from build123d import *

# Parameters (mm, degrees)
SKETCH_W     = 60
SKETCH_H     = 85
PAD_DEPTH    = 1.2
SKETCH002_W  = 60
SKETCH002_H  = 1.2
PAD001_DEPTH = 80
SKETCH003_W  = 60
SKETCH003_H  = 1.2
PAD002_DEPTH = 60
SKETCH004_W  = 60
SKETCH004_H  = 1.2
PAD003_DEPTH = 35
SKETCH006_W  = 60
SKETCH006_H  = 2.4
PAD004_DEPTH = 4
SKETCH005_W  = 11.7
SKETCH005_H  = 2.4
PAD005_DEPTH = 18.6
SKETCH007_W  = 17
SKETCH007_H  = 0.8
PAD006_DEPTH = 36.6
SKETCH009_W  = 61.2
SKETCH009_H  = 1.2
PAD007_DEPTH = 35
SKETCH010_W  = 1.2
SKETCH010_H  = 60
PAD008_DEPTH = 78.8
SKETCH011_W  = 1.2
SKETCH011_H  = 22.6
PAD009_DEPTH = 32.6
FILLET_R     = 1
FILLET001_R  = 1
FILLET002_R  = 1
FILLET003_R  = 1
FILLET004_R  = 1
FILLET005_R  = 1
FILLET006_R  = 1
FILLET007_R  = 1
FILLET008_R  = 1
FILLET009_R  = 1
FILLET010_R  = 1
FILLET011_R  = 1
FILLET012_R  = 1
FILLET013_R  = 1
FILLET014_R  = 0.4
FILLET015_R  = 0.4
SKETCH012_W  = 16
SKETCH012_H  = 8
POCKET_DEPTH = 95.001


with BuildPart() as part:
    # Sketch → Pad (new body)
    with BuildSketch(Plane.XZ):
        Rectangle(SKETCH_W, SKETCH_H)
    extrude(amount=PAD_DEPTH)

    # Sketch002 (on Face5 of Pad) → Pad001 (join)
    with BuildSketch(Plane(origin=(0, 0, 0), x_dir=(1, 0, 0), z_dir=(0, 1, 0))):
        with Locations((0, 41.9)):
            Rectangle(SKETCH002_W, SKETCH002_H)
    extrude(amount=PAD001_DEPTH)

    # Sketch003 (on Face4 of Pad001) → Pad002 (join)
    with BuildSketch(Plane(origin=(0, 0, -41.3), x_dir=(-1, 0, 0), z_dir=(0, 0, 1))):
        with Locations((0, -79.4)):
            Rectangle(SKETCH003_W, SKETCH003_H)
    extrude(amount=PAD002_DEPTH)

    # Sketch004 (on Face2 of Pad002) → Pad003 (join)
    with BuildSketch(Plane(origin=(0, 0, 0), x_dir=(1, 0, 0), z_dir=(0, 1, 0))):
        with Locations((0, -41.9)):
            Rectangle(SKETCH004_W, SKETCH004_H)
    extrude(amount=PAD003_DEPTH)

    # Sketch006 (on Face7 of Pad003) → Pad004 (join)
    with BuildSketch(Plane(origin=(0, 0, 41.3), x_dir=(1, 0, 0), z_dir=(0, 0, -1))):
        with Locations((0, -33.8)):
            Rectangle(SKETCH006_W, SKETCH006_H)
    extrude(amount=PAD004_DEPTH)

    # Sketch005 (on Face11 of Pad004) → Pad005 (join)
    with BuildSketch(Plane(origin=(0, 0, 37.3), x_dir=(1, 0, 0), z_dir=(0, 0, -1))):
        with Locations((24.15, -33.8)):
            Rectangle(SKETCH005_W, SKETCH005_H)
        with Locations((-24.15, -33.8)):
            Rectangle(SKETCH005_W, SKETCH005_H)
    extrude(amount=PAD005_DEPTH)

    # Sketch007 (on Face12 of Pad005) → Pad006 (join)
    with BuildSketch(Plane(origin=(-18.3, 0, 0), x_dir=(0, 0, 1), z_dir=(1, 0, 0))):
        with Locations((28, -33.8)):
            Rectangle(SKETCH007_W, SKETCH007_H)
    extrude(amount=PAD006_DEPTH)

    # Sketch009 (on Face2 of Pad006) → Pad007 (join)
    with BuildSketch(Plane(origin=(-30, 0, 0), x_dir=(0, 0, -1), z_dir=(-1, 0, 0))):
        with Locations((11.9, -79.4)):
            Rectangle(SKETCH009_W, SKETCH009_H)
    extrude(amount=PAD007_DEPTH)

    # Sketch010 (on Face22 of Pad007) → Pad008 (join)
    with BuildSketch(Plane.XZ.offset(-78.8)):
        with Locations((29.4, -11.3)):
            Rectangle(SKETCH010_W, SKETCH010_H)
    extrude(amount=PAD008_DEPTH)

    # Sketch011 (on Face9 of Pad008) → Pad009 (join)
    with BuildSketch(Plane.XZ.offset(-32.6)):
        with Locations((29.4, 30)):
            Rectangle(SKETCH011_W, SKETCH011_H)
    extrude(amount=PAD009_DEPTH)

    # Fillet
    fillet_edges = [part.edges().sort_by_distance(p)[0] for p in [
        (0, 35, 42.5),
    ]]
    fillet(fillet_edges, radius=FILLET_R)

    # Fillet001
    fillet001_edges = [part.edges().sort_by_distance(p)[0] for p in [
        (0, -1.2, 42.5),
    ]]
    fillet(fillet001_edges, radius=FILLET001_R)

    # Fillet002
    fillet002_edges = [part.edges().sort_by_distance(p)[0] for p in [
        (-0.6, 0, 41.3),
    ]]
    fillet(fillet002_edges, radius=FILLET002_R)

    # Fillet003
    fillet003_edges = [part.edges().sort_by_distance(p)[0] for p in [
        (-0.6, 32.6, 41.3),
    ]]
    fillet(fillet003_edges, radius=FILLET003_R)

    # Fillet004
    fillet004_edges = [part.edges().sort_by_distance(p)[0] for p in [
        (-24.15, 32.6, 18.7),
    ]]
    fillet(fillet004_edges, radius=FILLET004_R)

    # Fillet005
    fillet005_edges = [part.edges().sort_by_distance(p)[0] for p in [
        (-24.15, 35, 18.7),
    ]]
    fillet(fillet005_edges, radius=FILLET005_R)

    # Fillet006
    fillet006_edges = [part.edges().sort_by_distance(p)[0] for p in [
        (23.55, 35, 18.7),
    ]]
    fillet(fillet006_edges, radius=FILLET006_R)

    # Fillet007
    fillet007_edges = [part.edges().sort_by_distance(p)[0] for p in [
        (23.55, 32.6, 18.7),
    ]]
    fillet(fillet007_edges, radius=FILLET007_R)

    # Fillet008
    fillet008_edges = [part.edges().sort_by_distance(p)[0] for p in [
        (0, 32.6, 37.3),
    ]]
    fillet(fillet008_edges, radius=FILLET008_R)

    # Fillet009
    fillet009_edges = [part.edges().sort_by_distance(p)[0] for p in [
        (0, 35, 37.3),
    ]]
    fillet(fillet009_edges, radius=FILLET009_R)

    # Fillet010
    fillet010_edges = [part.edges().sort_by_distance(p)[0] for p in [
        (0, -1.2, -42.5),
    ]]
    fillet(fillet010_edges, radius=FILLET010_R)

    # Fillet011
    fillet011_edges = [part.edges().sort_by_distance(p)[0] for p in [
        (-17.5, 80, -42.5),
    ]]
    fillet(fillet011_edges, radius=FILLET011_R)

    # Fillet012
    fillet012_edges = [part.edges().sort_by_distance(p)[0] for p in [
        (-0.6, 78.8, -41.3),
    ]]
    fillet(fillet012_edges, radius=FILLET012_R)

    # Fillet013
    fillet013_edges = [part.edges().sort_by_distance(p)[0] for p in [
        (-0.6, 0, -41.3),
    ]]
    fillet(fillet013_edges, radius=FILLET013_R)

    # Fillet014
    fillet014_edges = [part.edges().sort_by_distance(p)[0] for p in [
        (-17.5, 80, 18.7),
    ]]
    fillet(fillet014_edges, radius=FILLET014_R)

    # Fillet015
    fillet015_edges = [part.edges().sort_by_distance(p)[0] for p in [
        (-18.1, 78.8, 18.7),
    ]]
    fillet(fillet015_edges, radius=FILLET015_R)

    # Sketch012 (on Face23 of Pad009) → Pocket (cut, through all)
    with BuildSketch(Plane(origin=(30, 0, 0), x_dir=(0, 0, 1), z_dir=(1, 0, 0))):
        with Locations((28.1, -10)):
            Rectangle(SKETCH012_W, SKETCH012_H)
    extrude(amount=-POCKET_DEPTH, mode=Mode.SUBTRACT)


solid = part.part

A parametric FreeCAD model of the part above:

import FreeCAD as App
import Part
import Sketcher
Q = App.Units.Quantity


def edges_at(feature, points):
    """Names of the edges that pass closest to the given points."""
    edges = feature.Shape.Edges
    near = lambda p: min(range(len(edges)), key=lambda i: edges[i].distToShape(Part.Vertex(*p))[0])
    return sorted({f"Edge{near(p) + 1}" for p in points})

doc = App.newDocument("Part")
params = doc.addObject("Spreadsheet::Sheet", "Params")
for row, (alias, value) in enumerate([
    ("sketch1_width", "60 mm"),
    ("sketch1_height", "85 mm"),
    ("pad1_length", "1.2 mm"),
    ("sketch2_width", "60 mm"),
    ("sketch2_height", "1.2 mm"),
    ("pad2_length", "80 mm"),
    ("sketch3_width", "60 mm"),
    ("sketch3_height", "1.2 mm"),
    ("pad3_length", "60 mm"),
    ("sketch4_width", "60 mm"),
    ("sketch4_height", "1.2 mm"),
    ("pad4_length", "35 mm"),
    ("sketch5_width", "60 mm"),
    ("sketch5_height", "2.4 mm"),
    ("pad5_length", "4 mm"),
    ("sketch6_width", "11.7 mm"),
    ("sketch6_height", "2.4 mm"),
    ("pad6_length", "18.6 mm"),
    ("sketch7_height", "17 mm"),
    ("sketch7_width", "0.8 mm"),
    ("pad7_length", "36.6 mm"),
    ("sketch8_width", "1.2 mm"),
    ("sketch8_height", "61.2 mm"),
    ("pad8_length", "35 mm"),
    ("sketch9_height", "60 mm"),
    ("sketch9_width", "1.2 mm"),
    ("pad9_length", "78.8 mm"),
    ("sketch10_width", "1.2 mm"),
    ("sketch10_height", "22.6 mm"),
    ("pad10_length", "32.6 mm"),
    ("fillet_radius", "1 mm"),
    ("fillet2_radius", "1 mm"),
    ("fillet3_radius", "1 mm"),
    ("fillet4_radius", "1 mm"),
    ("fillet5_radius", "1 mm"),
    ("fillet6_radius", "1 mm"),
    ("fillet7_radius", "1 mm"),
    ("fillet8_radius", "1 mm"),
    ("fillet9_radius", "1 mm"),
    ("fillet10_radius", "1 mm"),
    ("fillet11_radius", "1 mm"),
    ("fillet12_radius", "1 mm"),
    ("fillet13_radius", "1 mm"),
    ("fillet14_radius", "1 mm"),
    ("fillet15_radius", "0.4 mm"),
    ("fillet16_radius", "0.4 mm"),
    ("sketch11_width", "8 mm"),
    ("sketch11_height", "16 mm"),
], start=1):
    params.set(f"A{row}", alias)
    params.set(f"B{row}", "=" + value)
    params.setAlias(f"B{row}", alias)

body = doc.addObject("PartDesign::Body", "Body")

sketch1 = body.newObject("Sketcher::SketchObject", "Sketch")
sketch1.AttachmentSupport = (doc.getObject("XZ_Plane"), [""])
sketch1.MapMode = "FlatFace"
sketch1.addGeometry([
    Part.LineSegment(App.Vector(-30, 42, 0), App.Vector(-30, -42, 0)),
    Part.LineSegment(App.Vector(-30, -42, 0), App.Vector(30, -42, 0)),
    Part.LineSegment(App.Vector(30, -42, 0), App.Vector(30, 42, 0)),
    Part.LineSegment(App.Vector(30, 42, 0), App.Vector(-30, 42, 0)),
], False)
sketch1.addConstraint([
    Sketcher.Constraint("Coincident", 0, 2, 1, 1),
    Sketcher.Constraint("Coincident", 1, 2, 2, 1),
    Sketcher.Constraint("Coincident", 2, 2, 3, 1),
    Sketcher.Constraint("Coincident", 3, 2, 0, 1),
    Sketcher.Constraint("Vertical", 0),
    Sketcher.Constraint("Horizontal", 1),
    Sketcher.Constraint("Vertical", 2),
    Sketcher.Constraint("Horizontal", 3),
    Sketcher.Constraint("Symmetric", 0, 2, 2, 2, -1, 1),
    Sketcher.Constraint("DistanceX", 1, 1, 1, 2, Q("60 mm")),
    Sketcher.Constraint("DistanceY", 0, 2, 0, 1, Q("85 mm")),
])
sketch1.setExpression("Constraints[9]", "Params.sketch1_width")
sketch1.setExpression("Constraints[10]", "Params.sketch1_height")
pad1 = body.newObject("PartDesign::Pad", "Pad")
pad1.Profile = sketch1
pad1.setExpression("Length", "Params.pad1_length")

sketch2 = body.newObject("Sketcher::SketchObject", "Sketch001")
sketch2.AttachmentSupport = (doc.getObject("XZ_Plane"), [""])
sketch2.MapMode = "FlatFace"
sketch2.addGeometry([
    Part.LineSegment(App.Vector(-30, -42.5, 0), App.Vector(-30, -41.3, 0)),
    Part.LineSegment(App.Vector(-30, -41.3, 0), App.Vector(30, -41.3, 0)),
    Part.LineSegment(App.Vector(30, -41.3, 0), App.Vector(30, -42.5, 0)),
    Part.LineSegment(App.Vector(30, -42.5, 0), App.Vector(-30, -42.5, 0)),
], False)
sketch2.addConstraint([
    Sketcher.Constraint("Coincident", 0, 2, 1, 1),
    Sketcher.Constraint("Coincident", 1, 2, 2, 1),
    Sketcher.Constraint("Coincident", 2, 2, 3, 1),
    Sketcher.Constraint("Coincident", 3, 2, 0, 1),
    Sketcher.Constraint("Vertical", 0),
    Sketcher.Constraint("Horizontal", 1),
    Sketcher.Constraint("Vertical", 2),
    Sketcher.Constraint("Horizontal", 3),
    Sketcher.Constraint("DistanceX", 1, 1, 1, 2, Q("60 mm")),
    Sketcher.Constraint("DistanceY", 0, 1, 0, 2, Q("1.2 mm")),
    Sketcher.Constraint("DistanceX", 0, 2, -1, 1, Q("30 mm")),
    Sketcher.Constraint("DistanceY", 0, 2, -1, 1, Q("41.3 mm")),
])
sketch2.setExpression("Constraints[8]", "Params.sketch2_width")
sketch2.setExpression("Constraints[9]", "Params.sketch2_height")
pad2 = body.newObject("PartDesign::Pad", "Pad001")
pad2.Profile = sketch2
pad2.setExpression("Length", "Params.pad2_length")
pad2.Reversed = True

sketch3 = body.newObject("Sketcher::SketchObject", "Sketch002")
sketch3.AttachmentSupport = (doc.getObject("XY_Plane"), [""])
sketch3.MapMode = "FlatFace"
sketch3.AttachmentOffset = App.Placement(App.Vector(0, 0, -41.3), App.Rotation())
sketch3.addGeometry([
    Part.LineSegment(App.Vector(30, 78.8, 0), App.Vector(30, 80, 0)),
    Part.LineSegment(App.Vector(30, 80, 0), App.Vector(-30, 80, 0)),
    Part.LineSegment(App.Vector(-30, 80, 0), App.Vector(-30, 78.8, 0)),
    Part.LineSegment(App.Vector(-30, 78.8, 0), App.Vector(30, 78.8, 0)),
], False)
sketch3.addConstraint([
    Sketcher.Constraint("Coincident", 0, 2, 1, 1),
    Sketcher.Constraint("Coincident", 1, 2, 2, 1),
    Sketcher.Constraint("Coincident", 2, 2, 3, 1),
    Sketcher.Constraint("Coincident", 3, 2, 0, 1),
    Sketcher.Constraint("Vertical", 0),
    Sketcher.Constraint("Horizontal", 1),
    Sketcher.Constraint("Vertical", 2),
    Sketcher.Constraint("Horizontal", 3),
    Sketcher.Constraint("DistanceX", 1, 2, 1, 1, Q("60 mm")),
    Sketcher.Constraint("DistanceY", 0, 1, 0, 2, Q("1.2 mm")),
    Sketcher.Constraint("DistanceX", -1, 1, 0, 2, Q("30 mm")),
    Sketcher.Constraint("DistanceY", -1, 1, 0, 2, Q("80 mm")),
])
sketch3.setExpression("Constraints[8]", "Params.sketch3_width")
sketch3.setExpression("Constraints[9]", "Params.sketch3_height")
pad3 = body.newObject("PartDesign::Pad", "Pad002")
pad3.Profile = sketch3
pad3.setExpression("Length", "Params.pad3_length")

sketch4 = body.newObject("Sketcher::SketchObject", "Sketch003")
sketch4.AttachmentSupport = (doc.getObject("XZ_Plane"), [""])
sketch4.MapMode = "FlatFace"
sketch4.addGeometry([
    Part.LineSegment(App.Vector(-30, 41.3, 0), App.Vector(-30, 42.5, 0)),
    Part.LineSegment(App.Vector(-30, 42.5, 0), App.Vector(30, 42.5, 0)),
    Part.LineSegment(App.Vector(30, 42.5, 0), App.Vector(30, 41.3, 0)),
    Part.LineSegment(App.Vector(30, 41.3, 0), App.Vector(-30, 41.3, 0)),
], False)
sketch4.addConstraint([
    Sketcher.Constraint("Coincident", 0, 2, 1, 1),
    Sketcher.Constraint("Coincident", 1, 2, 2, 1),
    Sketcher.Constraint("Coincident", 2, 2, 3, 1),
    Sketcher.Constraint("Coincident", 3, 2, 0, 1),
    Sketcher.Constraint("Vertical", 0),
    Sketcher.Constraint("Horizontal", 1),
    Sketcher.Constraint("Vertical", 2),
    Sketcher.Constraint("Horizontal", 3),
    Sketcher.Constraint("DistanceX", 1, 1, 1, 2, Q("60 mm")),
    Sketcher.Constraint("DistanceY", 0, 1, 0, 2, Q("1.2 mm")),
    Sketcher.Constraint("DistanceX", 0, 2, -1, 1, Q("30 mm")),
    Sketcher.Constraint("DistanceY", -1, 1, 0, 2, Q("42.5 mm")),
])
sketch4.setExpression("Constraints[8]", "Params.sketch4_width")
sketch4.setExpression("Constraints[9]", "Params.sketch4_height")
pad4 = body.newObject("PartDesign::Pad", "Pad003")
pad4.Profile = sketch4
pad4.setExpression("Length", "Params.pad4_length")
pad4.Reversed = True

sketch5 = body.newObject("Sketcher::SketchObject", "Sketch004")
sketch5.AttachmentSupport = (doc.getObject("XY_Plane"), [""])
sketch5.MapMode = "FlatFace"
sketch5.AttachmentOffset = App.Placement(App.Vector(0, 0, 41.3), App.Rotation())
sketch5.addGeometry([
    Part.LineSegment(App.Vector(-30, 32.6, 0), App.Vector(-30, 35, 0)),
    Part.LineSegment(App.Vector(-30, 35, 0), App.Vector(30, 35, 0)),
    Part.LineSegment(App.Vector(30, 35, 0), App.Vector(30, 32.6, 0)),
    Part.LineSegment(App.Vector(30, 32.6, 0), App.Vector(-30, 32.6, 0)),
], False)
sketch5.addConstraint([
    Sketcher.Constraint("Coincident", 0, 2, 1, 1),
    Sketcher.Constraint("Coincident", 1, 2, 2, 1),
    Sketcher.Constraint("Coincident", 2, 2, 3, 1),
    Sketcher.Constraint("Coincident", 3, 2, 0, 1),
    Sketcher.Constraint("Vertical", 0),
    Sketcher.Constraint("Horizontal", 1),
    Sketcher.Constraint("Vertical", 2),
    Sketcher.Constraint("Horizontal", 3),
    Sketcher.Constraint("DistanceX", 1, 1, 1, 2, Q("60 mm")),
    Sketcher.Constraint("DistanceY", 0, 1, 0, 2, Q("2.4 mm")),
    Sketcher.Constraint("DistanceX", 0, 2, -1, 1, Q("30 mm")),
    Sketcher.Constraint("DistanceY", -1, 1, 0, 2, Q("35 mm")),
])
sketch5.setExpression("Constraints[8]", "Params.sketch5_width")
sketch5.setExpression("Constraints[9]", "Params.sketch5_height")
pad5 = body.newObject("PartDesign::Pad", "Pad004")
pad5.Profile = sketch5
pad5.setExpression("Length", "Params.pad5_length")
pad5.Reversed = True

sketch6 = body.newObject("Sketcher::SketchObject", "Sketch005")
sketch6.AttachmentSupport = (doc.getObject("XY_Plane"), [""])
sketch6.MapMode = "FlatFace"
sketch6.AttachmentOffset = App.Placement(App.Vector(0, 0, 37.3), App.Rotation())
sketch6.addGeometry([
    Part.LineSegment(App.Vector(18.3, 32.6, 0), App.Vector(18.3, 35, 0)),
    Part.LineSegment(App.Vector(18.3, 35, 0), App.Vector(30, 35, 0)),
    Part.LineSegment(App.Vector(30, 35, 0), App.Vector(30, 32.6, 0)),
    Part.LineSegment(App.Vector(30, 32.6, 0), App.Vector(18.3, 32.6, 0)),
    Part.LineSegment(App.Vector(-30, 32.6, 0), App.Vector(-30, 35, 0)),
    Part.LineSegment(App.Vector(-30, 35, 0), App.Vector(-18.3, 35, 0)),
    Part.LineSegment(App.Vector(-18.3, 35, 0), App.Vector(-18.3, 32.6, 0)),
    Part.LineSegment(App.Vector(-18.3, 32.6, 0), App.Vector(-30, 32.6, 0)),
], False)
sketch6.addConstraint([
    Sketcher.Constraint("Coincident", 0, 2, 1, 1),
    Sketcher.Constraint("Coincident", 1, 2, 2, 1),
    Sketcher.Constraint("Coincident", 2, 2, 3, 1),
    Sketcher.Constraint("Coincident", 3, 2, 0, 1),
    Sketcher.Constraint("Coincident", 4, 2, 5, 1),
    Sketcher.Constraint("Coincident", 5, 2, 6, 1),
    Sketcher.Constraint("Coincident", 6, 2, 7, 1),
    Sketcher.Constraint("Coincident", 7, 2, 4, 1),
    Sketcher.Constraint("Vertical", 0),
    Sketcher.Constraint("Horizontal", 1),
    Sketcher.Constraint("Vertical", 2),
    Sketcher.Constraint("Horizontal", 3),
    Sketcher.Constraint("Vertical", 4),
    Sketcher.Constraint("Horizontal", 5),
    Sketcher.Constraint("Vertical", 6),
    Sketcher.Constraint("Horizontal", 7),
    Sketcher.Constraint("Symmetric", 1, 2, 4, 2, -2),
    Sketcher.Constraint("Symmetric", 3, 2, 6, 2, -2),
    Sketcher.Constraint("DistanceX", 1, 1, 1, 2, Q("11.7 mm")),
    Sketcher.Constraint("DistanceY", 0, 1, 0, 2, Q("2.4 mm")),
    Sketcher.Constraint("DistanceY", -1, 1, 0, 2, Q("35 mm")),
    Sketcher.Constraint("DistanceX", -1, 1, 1, 2, Q("30 mm")),
])
sketch6.setExpression("Constraints[18]", "Params.sketch6_width")
sketch6.setExpression("Constraints[19]", "Params.sketch6_height")
pad6 = body.newObject("PartDesign::Pad", "Pad005")
pad6.Profile = sketch6
pad6.setExpression("Length", "Params.pad6_length")
pad6.Reversed = True

sketch7 = body.newObject("Sketcher::SketchObject", "Sketch006")
sketch7.AttachmentSupport = (doc.getObject("YZ_Plane"), [""])
sketch7.MapMode = "FlatFace"
sketch7.AttachmentOffset = App.Placement(App.Vector(0, 0, -18.3), App.Rotation())
sketch7.addGeometry([
    Part.LineSegment(App.Vector(33.4, 19.5, 0), App.Vector(34.2, 19.5, 0)),
    Part.LineSegment(App.Vector(34.2, 19.5, 0), App.Vector(34.2, 36.5, 0)),
    Part.LineSegment(App.Vector(34.2, 36.5, 0), App.Vector(33.4, 36.5, 0)),
    Part.LineSegment(App.Vector(33.4, 36.5, 0), App.Vector(33.4, 19.5, 0)),
], False)
sketch7.addConstraint([
    Sketcher.Constraint("Coincident", 0, 2, 1, 1),
    Sketcher.Constraint("Coincident", 1, 2, 2, 1),
    Sketcher.Constraint("Coincident", 2, 2, 3, 1),
    Sketcher.Constraint("Coincident", 3, 2, 0, 1),
    Sketcher.Constraint("Horizontal", 0),
    Sketcher.Constraint("Vertical", 1),
    Sketcher.Constraint("Horizontal", 2),
    Sketcher.Constraint("Vertical", 3),
    Sketcher.Constraint("DistanceY", 1, 1, 1, 2, Q("17 mm")),
    Sketcher.Constraint("DistanceX", 0, 1, 0, 2, Q("0.8 mm")),
    Sketcher.Constraint("DistanceX", -1, 1, 0, 2, Q("34.2 mm")),
    Sketcher.Constraint("DistanceY", -1, 1, 0, 2, Q("19.5 mm")),
])
sketch7.setExpression("Constraints[8]", "Params.sketch7_height")
sketch7.setExpression("Constraints[9]", "Params.sketch7_width")
pad7 = body.newObject("PartDesign::Pad", "Pad006")
pad7.Profile = sketch7
pad7.setExpression("Length", "Params.pad7_length")

sketch8 = body.newObject("Sketcher::SketchObject", "Sketch007")
sketch8.AttachmentSupport = (doc.getObject("YZ_Plane"), [""])
sketch8.MapMode = "FlatFace"
sketch8.AttachmentOffset = App.Placement(App.Vector(0, 0, -30), App.Rotation())
sketch8.addGeometry([
    Part.LineSegment(App.Vector(78.8, 18.7, 0), App.Vector(80, 18.7, 0)),
    Part.LineSegment(App.Vector(80, 18.7, 0), App.Vector(80, -42.5, 0)),
    Part.LineSegment(App.Vector(80, -42.5, 0), App.Vector(78.8, -42.5, 0)),
    Part.LineSegment(App.Vector(78.8, -42.5, 0), App.Vector(78.8, 18.7, 0)),
], False)
sketch8.addConstraint([
    Sketcher.Constraint("Coincident", 0, 2, 1, 1),
    Sketcher.Constraint("Coincident", 1, 2, 2, 1),
    Sketcher.Constraint("Coincident", 2, 2, 3, 1),
    Sketcher.Constraint("Coincident", 3, 2, 0, 1),
    Sketcher.Constraint("Horizontal", 0),
    Sketcher.Constraint("Vertical", 1),
    Sketcher.Constraint("Horizontal", 2),
    Sketcher.Constraint("Vertical", 3),
    Sketcher.Constraint("DistanceX", 0, 1, 0, 2, Q("1.2 mm")),
    Sketcher.Constraint("DistanceY", 1, 2, 1, 1, Q("61.2 mm")),
    Sketcher.Constraint("DistanceX", -1, 1, 0, 2, Q("80 mm")),
    Sketcher.Constraint("DistanceY", -1, 1, 0, 2, Q("18.7 mm")),
])
sketch8.setExpression("Constraints[8]", "Params.sketch8_width")
sketch8.setExpression("Constraints[9]", "Params.sketch8_height")
pad8 = body.newObject("PartDesign::Pad", "Pad007")
pad8.Profile = sketch8
pad8.setExpression("Length", "Params.pad8_length")
pad8.Reversed = True

sketch9 = body.newObject("Sketcher::SketchObject", "Sketch008")
sketch9.AttachmentSupport = (doc.getObject("XZ_Plane"), [""])
sketch9.MapMode = "FlatFace"
sketch9.AttachmentOffset = App.Placement(App.Vector(0, 0, -78.8), App.Rotation())
sketch9.addGeometry([
    Part.LineSegment(App.Vector(28.8, 18.7, 0), App.Vector(28.8, -41.3, 0)),
    Part.LineSegment(App.Vector(28.8, -41.3, 0), App.Vector(30, -41.3, 0)),
    Part.LineSegment(App.Vector(30, -41.3, 0), App.Vector(30, 18.7, 0)),
    Part.LineSegment(App.Vector(30, 18.7, 0), App.Vector(28.8, 18.7, 0)),
], False)
sketch9.addConstraint([
    Sketcher.Constraint("Coincident", 0, 2, 1, 1),
    Sketcher.Constraint("Coincident", 1, 2, 2, 1),
    Sketcher.Constraint("Coincident", 2, 2, 3, 1),
    Sketcher.Constraint("Coincident", 3, 2, 0, 1),
    Sketcher.Constraint("Vertical", 0),
    Sketcher.Constraint("Horizontal", 1),
    Sketcher.Constraint("Vertical", 2),
    Sketcher.Constraint("Horizontal", 3),
    Sketcher.Constraint("DistanceY", 0, 2, 0, 1, Q("60 mm")),
    Sketcher.Constraint("DistanceX", 1, 1, 1, 2, Q("1.2 mm")),
    Sketcher.Constraint("DistanceX", -1, 1, 1, 2, Q("30 mm")),
    Sketcher.Constraint("DistanceY", 0, 2, -1, 1, Q("41.3 mm")),
])
sketch9.setExpression("Constraints[8]", "Params.sketch9_height")
sketch9.setExpression("Constraints[9]", "Params.sketch9_width")
pad9 = body.newObject("PartDesign::Pad", "Pad008")
pad9.Profile = sketch9
pad9.setExpression("Length", "Params.pad9_length")

sketch10 = body.newObject("Sketcher::SketchObject", "Sketch009")
sketch10.AttachmentSupport = (doc.getObject("XZ_Plane"), [""])
sketch10.MapMode = "FlatFace"
sketch10.AttachmentOffset = App.Placement(App.Vector(0, 0, -32.6), App.Rotation())
sketch10.addGeometry([
    Part.LineSegment(App.Vector(28.8, 41.3, 0), App.Vector(28.8, 18.7, 0)),
    Part.LineSegment(App.Vector(28.8, 18.7, 0), App.Vector(30, 18.7, 0)),
    Part.LineSegment(App.Vector(30, 18.7, 0), App.Vector(30, 41.3, 0)),
    Part.LineSegment(App.Vector(30, 41.3, 0), App.Vector(28.8, 41.3, 0)),
], False)
sketch10.addConstraint([
    Sketcher.Constraint("Coincident", 0, 2, 1, 1),
    Sketcher.Constraint("Coincident", 1, 2, 2, 1),
    Sketcher.Constraint("Coincident", 2, 2, 3, 1),
    Sketcher.Constraint("Coincident", 3, 2, 0, 1),
    Sketcher.Constraint("Vertical", 0),
    Sketcher.Constraint("Horizontal", 1),
    Sketcher.Constraint("Vertical", 2),
    Sketcher.Constraint("Horizontal", 3),
    Sketcher.Constraint("DistanceX", 1, 1, 1, 2, Q("1.2 mm")),
    Sketcher.Constraint("DistanceY", 0, 2, 0, 1, Q("22.6 mm")),
    Sketcher.Constraint("DistanceX", -1, 1, 1, 2, Q("30 mm")),
    Sketcher.Constraint("DistanceY", -1, 1, 0, 2, Q("18.7 mm")),
])
sketch10.setExpression("Constraints[8]", "Params.sketch10_width")
sketch10.setExpression("Constraints[9]", "Params.sketch10_height")
pad10 = body.newObject("PartDesign::Pad", "Pad009")
pad10.Profile = sketch10
pad10.setExpression("Length", "Params.pad10_length")
doc.recompute()

fillet = body.newObject("PartDesign::Fillet", "Fillet")
fillet.Base = (pad10, edges_at(pad10, [(0, 35, 42.5)]))
fillet.setExpression("Radius", "Params.fillet_radius")
doc.recompute()

fillet2 = body.newObject("PartDesign::Fillet", "Fillet001")
fillet2.Base = (fillet, edges_at(fillet, [(0, -1.2, 42.5)]))
fillet2.setExpression("Radius", "Params.fillet2_radius")
doc.recompute()

fillet3 = body.newObject("PartDesign::Fillet", "Fillet002")
fillet3.Base = (fillet2, edges_at(fillet2, [(-0.6, 0, 41.3)]))
fillet3.setExpression("Radius", "Params.fillet3_radius")
doc.recompute()

fillet4 = body.newObject("PartDesign::Fillet", "Fillet003")
fillet4.Base = (fillet3, edges_at(fillet3, [(-0.6, 32.6, 41.3)]))
fillet4.setExpression("Radius", "Params.fillet4_radius")
doc.recompute()

fillet5 = body.newObject("PartDesign::Fillet", "Fillet004")
fillet5.Base = (fillet4, edges_at(fillet4, [(-24.15, 32.6, 18.7)]))
fillet5.setExpression("Radius", "Params.fillet5_radius")
doc.recompute()

fillet6 = body.newObject("PartDesign::Fillet", "Fillet005")
fillet6.Base = (fillet5, edges_at(fillet5, [(-24.15, 35, 18.7)]))
fillet6.setExpression("Radius", "Params.fillet6_radius")
doc.recompute()

fillet7 = body.newObject("PartDesign::Fillet", "Fillet006")
fillet7.Base = (fillet6, edges_at(fillet6, [(23.55, 35, 18.7)]))
fillet7.setExpression("Radius", "Params.fillet7_radius")
doc.recompute()

fillet8 = body.newObject("PartDesign::Fillet", "Fillet007")
fillet8.Base = (fillet7, edges_at(fillet7, [(23.55, 32.6, 18.7)]))
fillet8.setExpression("Radius", "Params.fillet8_radius")
doc.recompute()

fillet9 = body.newObject("PartDesign::Fillet", "Fillet008")
fillet9.Base = (fillet8, edges_at(fillet8, [(0, 32.6, 37.3)]))
fillet9.setExpression("Radius", "Params.fillet9_radius")
doc.recompute()

fillet10 = body.newObject("PartDesign::Fillet", "Fillet009")
fillet10.Base = (fillet9, edges_at(fillet9, [(0, 35, 37.3)]))
fillet10.setExpression("Radius", "Params.fillet10_radius")
doc.recompute()

fillet11 = body.newObject("PartDesign::Fillet", "Fillet010")
fillet11.Base = (fillet10, edges_at(fillet10, [(0, -1.2, -42.5)]))
fillet11.setExpression("Radius", "Params.fillet11_radius")
doc.recompute()

fillet12 = body.newObject("PartDesign::Fillet", "Fillet011")
fillet12.Base = (fillet11, edges_at(fillet11, [(-17.5, 80, -42.5)]))
fillet12.setExpression("Radius", "Params.fillet12_radius")
doc.recompute()

fillet13 = body.newObject("PartDesign::Fillet", "Fillet012")
fillet13.Base = (fillet12, edges_at(fillet12, [(-0.6, 78.8, -41.3)]))
fillet13.setExpression("Radius", "Params.fillet13_radius")
doc.recompute()

fillet14 = body.newObject("PartDesign::Fillet", "Fillet013")
fillet14.Base = (fillet13, edges_at(fillet13, [(-0.6, 0, -41.3)]))
fillet14.setExpression("Radius", "Params.fillet14_radius")
doc.recompute()

fillet15 = body.newObject("PartDesign::Fillet", "Fillet014")
fillet15.Base = (fillet14, edges_at(fillet14, [(-17.5, 80, 18.7)]))
fillet15.setExpression("Radius", "Params.fillet15_radius")
doc.recompute()

fillet16 = body.newObject("PartDesign::Fillet", "Fillet015")
fillet16.Base = (fillet15, edges_at(fillet15, [(-18.1, 78.8, 18.7)]))
fillet16.setExpression("Radius", "Params.fillet16_radius")

sketch11 = body.newObject("Sketcher::SketchObject", "Sketch010")
sketch11.AttachmentSupport = (doc.getObject("YZ_Plane"), [""])
sketch11.MapMode = "FlatFace"
sketch11.AttachmentOffset = App.Placement(App.Vector(0, 0, 30), App.Rotation())
sketch11.addGeometry([
    Part.LineSegment(App.Vector(6, 20, 0), App.Vector(14, 20, 0)),
    Part.LineSegment(App.Vector(14, 20, 0), App.Vector(14, 36, 0)),
    Part.LineSegment(App.Vector(14, 36, 0), App.Vector(6, 36, 0)),
    Part.LineSegment(App.Vector(6, 36, 0), App.Vector(6, 20, 0)),
], False)
sketch11.addConstraint([
    Sketcher.Constraint("Coincident", 0, 2, 1, 1),
    Sketcher.Constraint("Coincident", 1, 2, 2, 1),
    Sketcher.Constraint("Coincident", 2, 2, 3, 1),
    Sketcher.Constraint("Coincident", 3, 2, 0, 1),
    Sketcher.Constraint("Horizontal", 0),
    Sketcher.Constraint("Vertical", 1),
    Sketcher.Constraint("Horizontal", 2),
    Sketcher.Constraint("Vertical", 3),
    Sketcher.Constraint("DistanceX", 0, 1, 0, 2, Q("8 mm")),
    Sketcher.Constraint("DistanceY", 1, 1, 1, 2, Q("16 mm")),
    Sketcher.Constraint("DistanceX", -1, 1, 0, 2, Q("14 mm")),
    Sketcher.Constraint("DistanceY", -1, 1, 0, 2, Q("20.1 mm")),
])
sketch11.setExpression("Constraints[8]", "Params.sketch11_width")
sketch11.setExpression("Constraints[9]", "Params.sketch11_height")
pocket1 = body.newObject("PartDesign::Pocket", "Pocket")
pocket1.Profile = sketch11
pocket1.Type = "ThroughAll"

doc.recompute()
